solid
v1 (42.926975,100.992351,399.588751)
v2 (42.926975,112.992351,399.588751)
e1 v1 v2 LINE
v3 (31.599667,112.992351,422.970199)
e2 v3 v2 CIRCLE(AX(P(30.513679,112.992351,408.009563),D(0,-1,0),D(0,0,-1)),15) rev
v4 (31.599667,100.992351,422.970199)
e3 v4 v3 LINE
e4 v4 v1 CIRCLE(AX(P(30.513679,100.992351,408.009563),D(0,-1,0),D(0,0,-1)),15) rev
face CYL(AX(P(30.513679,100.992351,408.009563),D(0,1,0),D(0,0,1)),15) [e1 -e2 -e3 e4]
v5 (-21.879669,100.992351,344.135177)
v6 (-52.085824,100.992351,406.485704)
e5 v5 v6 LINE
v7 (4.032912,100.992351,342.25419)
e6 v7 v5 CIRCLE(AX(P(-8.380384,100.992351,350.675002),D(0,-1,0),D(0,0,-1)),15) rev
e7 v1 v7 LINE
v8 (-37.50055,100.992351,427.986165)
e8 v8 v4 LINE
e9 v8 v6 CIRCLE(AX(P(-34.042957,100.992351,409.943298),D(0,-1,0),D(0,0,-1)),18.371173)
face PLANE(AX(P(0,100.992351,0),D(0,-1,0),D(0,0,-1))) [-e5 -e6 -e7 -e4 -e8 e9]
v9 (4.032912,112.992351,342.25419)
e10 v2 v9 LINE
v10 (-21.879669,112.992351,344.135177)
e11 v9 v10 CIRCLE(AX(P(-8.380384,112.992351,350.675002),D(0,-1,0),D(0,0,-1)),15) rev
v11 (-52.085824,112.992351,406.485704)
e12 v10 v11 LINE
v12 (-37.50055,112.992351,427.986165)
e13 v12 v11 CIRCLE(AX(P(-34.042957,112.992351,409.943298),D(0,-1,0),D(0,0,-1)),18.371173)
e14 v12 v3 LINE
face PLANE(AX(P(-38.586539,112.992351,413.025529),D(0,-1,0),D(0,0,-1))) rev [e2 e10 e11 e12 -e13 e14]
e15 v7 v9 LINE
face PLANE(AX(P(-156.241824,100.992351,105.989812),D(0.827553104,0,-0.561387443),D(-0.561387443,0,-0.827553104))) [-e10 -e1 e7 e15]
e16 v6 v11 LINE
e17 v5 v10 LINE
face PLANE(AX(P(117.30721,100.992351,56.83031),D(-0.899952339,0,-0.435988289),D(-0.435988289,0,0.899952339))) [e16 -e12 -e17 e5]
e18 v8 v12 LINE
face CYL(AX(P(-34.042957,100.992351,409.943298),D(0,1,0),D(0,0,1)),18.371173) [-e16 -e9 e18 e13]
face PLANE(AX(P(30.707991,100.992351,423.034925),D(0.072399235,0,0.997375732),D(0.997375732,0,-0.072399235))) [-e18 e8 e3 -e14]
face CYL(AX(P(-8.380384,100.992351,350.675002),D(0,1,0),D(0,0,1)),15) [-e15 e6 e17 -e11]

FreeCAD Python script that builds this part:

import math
import FreeCAD as App
import Part
import Sketcher

V = App.Vector
Q = App.Units.Quantity

doc = App.newDocument("Part")
body = doc.addObject("PartDesign::Body", "Body")

sketch1 = body.newObject("Sketcher::SketchObject", "Sketch")
sketch1.AttachmentSupport = (doc.getObject("XZ_Plane"), [""])
sketch1.MapMode = "FlatFace"
sketch1.AttachmentOffset = App.Placement(V(0, 0, -112.992351), App.Rotation())
sketch1.addGeometry([
    Part.LineSegment(V(30.9, 413, 0), V(-38.2, 418, 0)),
    Part.ArcOfCircle(Part.Circle(V(-38.6, 413, 0), V(0, 0, 1), 5), math.radians(86), math.radians(206)),
    Part.LineSegment(V(-43.1, 410.8, 0), V(-12.9, 348.5, 0)),
    Part.ArcOfCircle(Part.Circle(V(-8.4, 350.7, 0), V(0, 0, 1), 5), math.radians(-154), math.radians(-34)),
    Part.LineSegment(V(-4.2, 347.9, 0), V(34.7, 405.2, 0)),
    Part.ArcOfCircle(Part.Circle(V(30.5, 408, 0), V(0, 0, 1), 5), math.radians(-34), math.radians(86)),
], False)
sketch1.addConstraint([
    Sketcher.Constraint("Tangent", 0, 2, 1, 1),
    Sketcher.Constraint("Tangent", 1, 2, 2, 1),
    Sketcher.Constraint("Tangent", 2, 2, 3, 1),
    Sketcher.Constraint("Tangent", 3, 2, 4, 1),
    Sketcher.Constraint("Tangent", 4, 2, 5, 1),
    Sketcher.Constraint("Tangent", 5, 2, 0, 1),
    Sketcher.Constraint("Equal", 1, 3),
    Sketcher.Constraint("Equal", 3, 5),
    Sketcher.Constraint("Equal", 0, 2),
    Sketcher.Constraint("Equal", 2, 4),
    Sketcher.Constraint("Radius", 1, Q("5 mm")),
    Sketcher.Constraint("DistanceY", -1, 1, 3, 3, Q("350.675002 mm")),
    Sketcher.Constraint("DistanceX", 1, 2, -1, 1, Q("43.086301 mm")),
    Sketcher.Constraint("DistanceY", 3, 2, 5, 3, Q("60.141498 mm")),
    Sketcher.Constraint("DistanceX", 1, 3, -1, 1, Q("38.586539 mm")),
])
pad1 = body.newObject("PartDesign::Pad", "Pad")
pad1.Profile = sketch1
pad1.Length = 10
body2 = doc.addObject("PartDesign::Body", "Body001")

sketch2 = body2.newObject("Sketcher::SketchObject", "Sketch001")
sketch2.AttachmentSupport = (doc.getObject("XZ_Plane001"), [""])
sketch2.MapMode = "FlatFace"
sketch2.AttachmentOffset = App.Placement(V(0, 0, -102.992351), App.Rotation())
sketch2.addGeometry([
    Part.LineSegment(V(31.6, 423, 0), V(-37.5, 428, 0)),
    Part.ArcOfCircle(Part.Circle(V(-34, 409.9, 0), V(0, 0, 1), 18.4), math.radians(101), math.radians(191)),
    Part.LineSegment(V(-52.1, 406.5, 0), V(-21.9, 344.1, 0)),
    Part.ArcOfCircle(Part.Circle(V(-8.4, 350.7, 0), V(0, 0, 1), 15), math.radians(-154), math.radians(-34)),
    Part.LineSegment(V(4, 342.3, 0), V(42.9, 399.6, 0)),
    Part.ArcOfCircle(Part.Circle(V(30.5, 408, 0), V(0, 0, 1), 15), math.radians(-34), math.radians(86)),
    Part.LineSegment(V(-38.2, 418, 0), V(30.9, 413, 0)),
    Part.ArcOfCircle(Part.Circle(V(30.5, 408, 0), V(0, 0, 1), 5), math.radians(-34), math.radians(86)),
    Part.LineSegment(V(34.7, 405.2, 0), V(-4.2, 347.9, 0)),
    Part.ArcOfCircle(Part.Circle(V(-8.4, 350.7, 0), V(0, 0, 1), 5), math.radians(-154), math.radians(-34)),
    Part.LineSegment(V(-12.9, 348.5, 0), V(-43.1, 410.8, 0)),
    Part.ArcOfCircle(Part.Circle(V(-38.6, 413, 0), V(0, 0, 1), 5), math.radians(86), math.radians(206)),
], False)
sketch2.addConstraint([
    Sketcher.Constraint("Coincident", 0, 2, 1, 1),
    Sketcher.Constraint("Coincident", 1, 2, 2, 1),
    Sketcher.Constraint("Tangent", 2, 2, 3, 1),
    Sketcher.Constraint("Tangent", 3, 2, 4, 1),
    Sketcher.Constraint("Tangent", 4, 2, 5, 1),
    Sketcher.Constraint("Tangent", 5, 2, 0, 1),
    Sketcher.Constraint("Tangent", 6, 2, 7, 2),
    Sketcher.Constraint("Tangent", 7, 1, 8, 1),
    Sketcher.Constraint("Tangent", 8, 2, 9, 2),
    Sketcher.Constraint("Tangent", 9, 1, 10, 1),
    Sketcher.Constraint("Tangent", 10, 2, 11, 2),
    Sketcher.Constraint("Tangent", 11, 1, 6, 1),
    Sketcher.Constraint("Coincident", 7, 3, 5, 3),
    Sketcher.Constraint("Coincident", 9, 3, 3, 3),
    Sketcher.Constraint("Equal", 3, 5),
    Sketcher.Constraint("Equal", 7, 9),
    Sketcher.Constraint("Equal", 9, 11),
    Sketcher.Constraint("Parallel", 0, 6),
    Sketcher.Constraint("Parallel", 2, 10),
    Sketcher.Constraint("Equal", 0, 2),
    Sketcher.Constraint("Equal", 2, 4),
    Sketcher.Constraint("Equal", 4, 6),
    Sketcher.Constraint("Equal", 8, 10),
    Sketcher.Constraint("Radius", 3, Q("15 mm")),
    Sketcher.Constraint("Radius", 7, Q("5 mm")),
    Sketcher.Constraint("DistanceY", -1, 1, 3, 3, Q("350.675002 mm")),
    Sketcher.Constraint("Radius", 1, Q("18.371173 mm")),
    Sketcher.Constraint("DistanceY", -1, 1, 5, 2, Q("422.970199 mm")),
    Sketcher.Constraint("DistanceX", 10, 2, -1, 1, Q("43.086301 mm")),
    Sketcher.Constraint("DistanceY", 1, 3, 5, 2, Q("13.026901 mm")),
])
pad2 = body2.newObject("PartDesign::Pad", "Pad001")
pad2.Profile = sketch2
pad2.Length = 10
pad2.Reversed = True
doc.recompute()

boolean = body.newObject("PartDesign::Boolean", "Boolean")
boolean.Type = "Fuse"
boolean.addObjects([body2])

sketch3 = body.newObject("Sketcher::SketchObject", "Sketch002")
sketch3.AttachmentSupport = (doc.getObject("XZ_Plane"), [""])
sketch3.MapMode = "FlatFace"
sketch3.AttachmentOffset = App.Placement(V(0, 0, -102.992351), App.Rotation())
sketch3.addGeometry([
    Part.LineSegment(V(31.599667, 422.970199, 0), V(-37.50055, 427.986165, 0)),
    Part.ArcOfCircle(Part.Circle(V(-34.042957, 409.943298, 0), V(0, 0, 1), 18.371173), math.radians(100.848197), math.radians(190.848197)),
    Part.LineSegment(V(-52.085824, 406.485704, 0), V(-21.879669, 344.135177, 0)),
    Part.ArcOfCircle(Part.Circle(V(-8.380384, 350.675002, 0), V(0, 0, 1), 15), math.radians(-154.151803), math.radians(-34.151803)),
    Part.LineSegment(V(4.032912, 342.25419, 0), V(42.926975, 399.588751, 0)),
    Part.ArcOfCircle(Part.Circle(V(30.513679, 408.009563, 0), V(0, 0, 1), 15), math.radians(-34.151803), math.radians(85.848197)),
], False)
sketch3.addConstraint([
    Sketcher.Constraint("Coincident", 0, 2, 1, 1),
    Sketcher.Constraint("Coincident", 1, 2, 2, 1),
    Sketcher.Constraint("Coincident", 2, 2, 3, 1),
    Sketcher.Constraint("Coincident", 3, 2, 4, 1),
    Sketcher.Constraint("Coincident", 4, 2, 5, 1),
    Sketcher.Constraint("Coincident", 5, 2, 0, 1),
    Sketcher.Constraint("Radius", 3, Q("15 mm")),
    Sketcher.Constraint("Radius", 5, Q("15 mm")),
    Sketcher.Constraint("DistanceY", -1, 1, 3, 3, Q("350.675002 mm")),
    Sketcher.Constraint("Radius", 1, Q("18.371173 mm")),
    Sketcher.Constraint("DistanceY", -1, 1, 5, 2, Q("422.970199 mm")),
    Sketcher.Constraint("DistanceY", 1, 3, 5, 2, Q("13.026901 mm")),
    Sketcher.Constraint("DistanceX", -1, 1, 5, 3, Q("30.513679 mm")),
    Sketcher.Constraint("DistanceX", 0, 2, -1, 1, Q("37.50055 mm")),
    Sketcher.Constraint("DistanceX", 2, 2, -1, 1, Q("21.879669 mm")),
    Sketcher.Constraint("DistanceY", -1, 1, 3, 2, Q("342.25419 mm")),
    Sketcher.Constraint("DistanceY", -1, 1, 4, 2, Q("399.588751 mm")),
    Sketcher.Constraint("DistanceY", 3, 3, 5, 3, Q("57.334561 mm")),
    Sketcher.Constraint("DistanceY", 1, 2, 0, 2, Q("21.50046 mm")),
    Sketcher.Constraint("DistanceX", 1, 2, 3, 3, Q("43.70544 mm")),
    Sketcher.Constraint("DistanceY", 1, 2, 5, 3, Q("1.523858 mm")),
])
pad3 = body.newObject("PartDesign::Pad", "Pad002")
pad3.Profile = sketch3
pad3.Length = 2

doc.recompute()
